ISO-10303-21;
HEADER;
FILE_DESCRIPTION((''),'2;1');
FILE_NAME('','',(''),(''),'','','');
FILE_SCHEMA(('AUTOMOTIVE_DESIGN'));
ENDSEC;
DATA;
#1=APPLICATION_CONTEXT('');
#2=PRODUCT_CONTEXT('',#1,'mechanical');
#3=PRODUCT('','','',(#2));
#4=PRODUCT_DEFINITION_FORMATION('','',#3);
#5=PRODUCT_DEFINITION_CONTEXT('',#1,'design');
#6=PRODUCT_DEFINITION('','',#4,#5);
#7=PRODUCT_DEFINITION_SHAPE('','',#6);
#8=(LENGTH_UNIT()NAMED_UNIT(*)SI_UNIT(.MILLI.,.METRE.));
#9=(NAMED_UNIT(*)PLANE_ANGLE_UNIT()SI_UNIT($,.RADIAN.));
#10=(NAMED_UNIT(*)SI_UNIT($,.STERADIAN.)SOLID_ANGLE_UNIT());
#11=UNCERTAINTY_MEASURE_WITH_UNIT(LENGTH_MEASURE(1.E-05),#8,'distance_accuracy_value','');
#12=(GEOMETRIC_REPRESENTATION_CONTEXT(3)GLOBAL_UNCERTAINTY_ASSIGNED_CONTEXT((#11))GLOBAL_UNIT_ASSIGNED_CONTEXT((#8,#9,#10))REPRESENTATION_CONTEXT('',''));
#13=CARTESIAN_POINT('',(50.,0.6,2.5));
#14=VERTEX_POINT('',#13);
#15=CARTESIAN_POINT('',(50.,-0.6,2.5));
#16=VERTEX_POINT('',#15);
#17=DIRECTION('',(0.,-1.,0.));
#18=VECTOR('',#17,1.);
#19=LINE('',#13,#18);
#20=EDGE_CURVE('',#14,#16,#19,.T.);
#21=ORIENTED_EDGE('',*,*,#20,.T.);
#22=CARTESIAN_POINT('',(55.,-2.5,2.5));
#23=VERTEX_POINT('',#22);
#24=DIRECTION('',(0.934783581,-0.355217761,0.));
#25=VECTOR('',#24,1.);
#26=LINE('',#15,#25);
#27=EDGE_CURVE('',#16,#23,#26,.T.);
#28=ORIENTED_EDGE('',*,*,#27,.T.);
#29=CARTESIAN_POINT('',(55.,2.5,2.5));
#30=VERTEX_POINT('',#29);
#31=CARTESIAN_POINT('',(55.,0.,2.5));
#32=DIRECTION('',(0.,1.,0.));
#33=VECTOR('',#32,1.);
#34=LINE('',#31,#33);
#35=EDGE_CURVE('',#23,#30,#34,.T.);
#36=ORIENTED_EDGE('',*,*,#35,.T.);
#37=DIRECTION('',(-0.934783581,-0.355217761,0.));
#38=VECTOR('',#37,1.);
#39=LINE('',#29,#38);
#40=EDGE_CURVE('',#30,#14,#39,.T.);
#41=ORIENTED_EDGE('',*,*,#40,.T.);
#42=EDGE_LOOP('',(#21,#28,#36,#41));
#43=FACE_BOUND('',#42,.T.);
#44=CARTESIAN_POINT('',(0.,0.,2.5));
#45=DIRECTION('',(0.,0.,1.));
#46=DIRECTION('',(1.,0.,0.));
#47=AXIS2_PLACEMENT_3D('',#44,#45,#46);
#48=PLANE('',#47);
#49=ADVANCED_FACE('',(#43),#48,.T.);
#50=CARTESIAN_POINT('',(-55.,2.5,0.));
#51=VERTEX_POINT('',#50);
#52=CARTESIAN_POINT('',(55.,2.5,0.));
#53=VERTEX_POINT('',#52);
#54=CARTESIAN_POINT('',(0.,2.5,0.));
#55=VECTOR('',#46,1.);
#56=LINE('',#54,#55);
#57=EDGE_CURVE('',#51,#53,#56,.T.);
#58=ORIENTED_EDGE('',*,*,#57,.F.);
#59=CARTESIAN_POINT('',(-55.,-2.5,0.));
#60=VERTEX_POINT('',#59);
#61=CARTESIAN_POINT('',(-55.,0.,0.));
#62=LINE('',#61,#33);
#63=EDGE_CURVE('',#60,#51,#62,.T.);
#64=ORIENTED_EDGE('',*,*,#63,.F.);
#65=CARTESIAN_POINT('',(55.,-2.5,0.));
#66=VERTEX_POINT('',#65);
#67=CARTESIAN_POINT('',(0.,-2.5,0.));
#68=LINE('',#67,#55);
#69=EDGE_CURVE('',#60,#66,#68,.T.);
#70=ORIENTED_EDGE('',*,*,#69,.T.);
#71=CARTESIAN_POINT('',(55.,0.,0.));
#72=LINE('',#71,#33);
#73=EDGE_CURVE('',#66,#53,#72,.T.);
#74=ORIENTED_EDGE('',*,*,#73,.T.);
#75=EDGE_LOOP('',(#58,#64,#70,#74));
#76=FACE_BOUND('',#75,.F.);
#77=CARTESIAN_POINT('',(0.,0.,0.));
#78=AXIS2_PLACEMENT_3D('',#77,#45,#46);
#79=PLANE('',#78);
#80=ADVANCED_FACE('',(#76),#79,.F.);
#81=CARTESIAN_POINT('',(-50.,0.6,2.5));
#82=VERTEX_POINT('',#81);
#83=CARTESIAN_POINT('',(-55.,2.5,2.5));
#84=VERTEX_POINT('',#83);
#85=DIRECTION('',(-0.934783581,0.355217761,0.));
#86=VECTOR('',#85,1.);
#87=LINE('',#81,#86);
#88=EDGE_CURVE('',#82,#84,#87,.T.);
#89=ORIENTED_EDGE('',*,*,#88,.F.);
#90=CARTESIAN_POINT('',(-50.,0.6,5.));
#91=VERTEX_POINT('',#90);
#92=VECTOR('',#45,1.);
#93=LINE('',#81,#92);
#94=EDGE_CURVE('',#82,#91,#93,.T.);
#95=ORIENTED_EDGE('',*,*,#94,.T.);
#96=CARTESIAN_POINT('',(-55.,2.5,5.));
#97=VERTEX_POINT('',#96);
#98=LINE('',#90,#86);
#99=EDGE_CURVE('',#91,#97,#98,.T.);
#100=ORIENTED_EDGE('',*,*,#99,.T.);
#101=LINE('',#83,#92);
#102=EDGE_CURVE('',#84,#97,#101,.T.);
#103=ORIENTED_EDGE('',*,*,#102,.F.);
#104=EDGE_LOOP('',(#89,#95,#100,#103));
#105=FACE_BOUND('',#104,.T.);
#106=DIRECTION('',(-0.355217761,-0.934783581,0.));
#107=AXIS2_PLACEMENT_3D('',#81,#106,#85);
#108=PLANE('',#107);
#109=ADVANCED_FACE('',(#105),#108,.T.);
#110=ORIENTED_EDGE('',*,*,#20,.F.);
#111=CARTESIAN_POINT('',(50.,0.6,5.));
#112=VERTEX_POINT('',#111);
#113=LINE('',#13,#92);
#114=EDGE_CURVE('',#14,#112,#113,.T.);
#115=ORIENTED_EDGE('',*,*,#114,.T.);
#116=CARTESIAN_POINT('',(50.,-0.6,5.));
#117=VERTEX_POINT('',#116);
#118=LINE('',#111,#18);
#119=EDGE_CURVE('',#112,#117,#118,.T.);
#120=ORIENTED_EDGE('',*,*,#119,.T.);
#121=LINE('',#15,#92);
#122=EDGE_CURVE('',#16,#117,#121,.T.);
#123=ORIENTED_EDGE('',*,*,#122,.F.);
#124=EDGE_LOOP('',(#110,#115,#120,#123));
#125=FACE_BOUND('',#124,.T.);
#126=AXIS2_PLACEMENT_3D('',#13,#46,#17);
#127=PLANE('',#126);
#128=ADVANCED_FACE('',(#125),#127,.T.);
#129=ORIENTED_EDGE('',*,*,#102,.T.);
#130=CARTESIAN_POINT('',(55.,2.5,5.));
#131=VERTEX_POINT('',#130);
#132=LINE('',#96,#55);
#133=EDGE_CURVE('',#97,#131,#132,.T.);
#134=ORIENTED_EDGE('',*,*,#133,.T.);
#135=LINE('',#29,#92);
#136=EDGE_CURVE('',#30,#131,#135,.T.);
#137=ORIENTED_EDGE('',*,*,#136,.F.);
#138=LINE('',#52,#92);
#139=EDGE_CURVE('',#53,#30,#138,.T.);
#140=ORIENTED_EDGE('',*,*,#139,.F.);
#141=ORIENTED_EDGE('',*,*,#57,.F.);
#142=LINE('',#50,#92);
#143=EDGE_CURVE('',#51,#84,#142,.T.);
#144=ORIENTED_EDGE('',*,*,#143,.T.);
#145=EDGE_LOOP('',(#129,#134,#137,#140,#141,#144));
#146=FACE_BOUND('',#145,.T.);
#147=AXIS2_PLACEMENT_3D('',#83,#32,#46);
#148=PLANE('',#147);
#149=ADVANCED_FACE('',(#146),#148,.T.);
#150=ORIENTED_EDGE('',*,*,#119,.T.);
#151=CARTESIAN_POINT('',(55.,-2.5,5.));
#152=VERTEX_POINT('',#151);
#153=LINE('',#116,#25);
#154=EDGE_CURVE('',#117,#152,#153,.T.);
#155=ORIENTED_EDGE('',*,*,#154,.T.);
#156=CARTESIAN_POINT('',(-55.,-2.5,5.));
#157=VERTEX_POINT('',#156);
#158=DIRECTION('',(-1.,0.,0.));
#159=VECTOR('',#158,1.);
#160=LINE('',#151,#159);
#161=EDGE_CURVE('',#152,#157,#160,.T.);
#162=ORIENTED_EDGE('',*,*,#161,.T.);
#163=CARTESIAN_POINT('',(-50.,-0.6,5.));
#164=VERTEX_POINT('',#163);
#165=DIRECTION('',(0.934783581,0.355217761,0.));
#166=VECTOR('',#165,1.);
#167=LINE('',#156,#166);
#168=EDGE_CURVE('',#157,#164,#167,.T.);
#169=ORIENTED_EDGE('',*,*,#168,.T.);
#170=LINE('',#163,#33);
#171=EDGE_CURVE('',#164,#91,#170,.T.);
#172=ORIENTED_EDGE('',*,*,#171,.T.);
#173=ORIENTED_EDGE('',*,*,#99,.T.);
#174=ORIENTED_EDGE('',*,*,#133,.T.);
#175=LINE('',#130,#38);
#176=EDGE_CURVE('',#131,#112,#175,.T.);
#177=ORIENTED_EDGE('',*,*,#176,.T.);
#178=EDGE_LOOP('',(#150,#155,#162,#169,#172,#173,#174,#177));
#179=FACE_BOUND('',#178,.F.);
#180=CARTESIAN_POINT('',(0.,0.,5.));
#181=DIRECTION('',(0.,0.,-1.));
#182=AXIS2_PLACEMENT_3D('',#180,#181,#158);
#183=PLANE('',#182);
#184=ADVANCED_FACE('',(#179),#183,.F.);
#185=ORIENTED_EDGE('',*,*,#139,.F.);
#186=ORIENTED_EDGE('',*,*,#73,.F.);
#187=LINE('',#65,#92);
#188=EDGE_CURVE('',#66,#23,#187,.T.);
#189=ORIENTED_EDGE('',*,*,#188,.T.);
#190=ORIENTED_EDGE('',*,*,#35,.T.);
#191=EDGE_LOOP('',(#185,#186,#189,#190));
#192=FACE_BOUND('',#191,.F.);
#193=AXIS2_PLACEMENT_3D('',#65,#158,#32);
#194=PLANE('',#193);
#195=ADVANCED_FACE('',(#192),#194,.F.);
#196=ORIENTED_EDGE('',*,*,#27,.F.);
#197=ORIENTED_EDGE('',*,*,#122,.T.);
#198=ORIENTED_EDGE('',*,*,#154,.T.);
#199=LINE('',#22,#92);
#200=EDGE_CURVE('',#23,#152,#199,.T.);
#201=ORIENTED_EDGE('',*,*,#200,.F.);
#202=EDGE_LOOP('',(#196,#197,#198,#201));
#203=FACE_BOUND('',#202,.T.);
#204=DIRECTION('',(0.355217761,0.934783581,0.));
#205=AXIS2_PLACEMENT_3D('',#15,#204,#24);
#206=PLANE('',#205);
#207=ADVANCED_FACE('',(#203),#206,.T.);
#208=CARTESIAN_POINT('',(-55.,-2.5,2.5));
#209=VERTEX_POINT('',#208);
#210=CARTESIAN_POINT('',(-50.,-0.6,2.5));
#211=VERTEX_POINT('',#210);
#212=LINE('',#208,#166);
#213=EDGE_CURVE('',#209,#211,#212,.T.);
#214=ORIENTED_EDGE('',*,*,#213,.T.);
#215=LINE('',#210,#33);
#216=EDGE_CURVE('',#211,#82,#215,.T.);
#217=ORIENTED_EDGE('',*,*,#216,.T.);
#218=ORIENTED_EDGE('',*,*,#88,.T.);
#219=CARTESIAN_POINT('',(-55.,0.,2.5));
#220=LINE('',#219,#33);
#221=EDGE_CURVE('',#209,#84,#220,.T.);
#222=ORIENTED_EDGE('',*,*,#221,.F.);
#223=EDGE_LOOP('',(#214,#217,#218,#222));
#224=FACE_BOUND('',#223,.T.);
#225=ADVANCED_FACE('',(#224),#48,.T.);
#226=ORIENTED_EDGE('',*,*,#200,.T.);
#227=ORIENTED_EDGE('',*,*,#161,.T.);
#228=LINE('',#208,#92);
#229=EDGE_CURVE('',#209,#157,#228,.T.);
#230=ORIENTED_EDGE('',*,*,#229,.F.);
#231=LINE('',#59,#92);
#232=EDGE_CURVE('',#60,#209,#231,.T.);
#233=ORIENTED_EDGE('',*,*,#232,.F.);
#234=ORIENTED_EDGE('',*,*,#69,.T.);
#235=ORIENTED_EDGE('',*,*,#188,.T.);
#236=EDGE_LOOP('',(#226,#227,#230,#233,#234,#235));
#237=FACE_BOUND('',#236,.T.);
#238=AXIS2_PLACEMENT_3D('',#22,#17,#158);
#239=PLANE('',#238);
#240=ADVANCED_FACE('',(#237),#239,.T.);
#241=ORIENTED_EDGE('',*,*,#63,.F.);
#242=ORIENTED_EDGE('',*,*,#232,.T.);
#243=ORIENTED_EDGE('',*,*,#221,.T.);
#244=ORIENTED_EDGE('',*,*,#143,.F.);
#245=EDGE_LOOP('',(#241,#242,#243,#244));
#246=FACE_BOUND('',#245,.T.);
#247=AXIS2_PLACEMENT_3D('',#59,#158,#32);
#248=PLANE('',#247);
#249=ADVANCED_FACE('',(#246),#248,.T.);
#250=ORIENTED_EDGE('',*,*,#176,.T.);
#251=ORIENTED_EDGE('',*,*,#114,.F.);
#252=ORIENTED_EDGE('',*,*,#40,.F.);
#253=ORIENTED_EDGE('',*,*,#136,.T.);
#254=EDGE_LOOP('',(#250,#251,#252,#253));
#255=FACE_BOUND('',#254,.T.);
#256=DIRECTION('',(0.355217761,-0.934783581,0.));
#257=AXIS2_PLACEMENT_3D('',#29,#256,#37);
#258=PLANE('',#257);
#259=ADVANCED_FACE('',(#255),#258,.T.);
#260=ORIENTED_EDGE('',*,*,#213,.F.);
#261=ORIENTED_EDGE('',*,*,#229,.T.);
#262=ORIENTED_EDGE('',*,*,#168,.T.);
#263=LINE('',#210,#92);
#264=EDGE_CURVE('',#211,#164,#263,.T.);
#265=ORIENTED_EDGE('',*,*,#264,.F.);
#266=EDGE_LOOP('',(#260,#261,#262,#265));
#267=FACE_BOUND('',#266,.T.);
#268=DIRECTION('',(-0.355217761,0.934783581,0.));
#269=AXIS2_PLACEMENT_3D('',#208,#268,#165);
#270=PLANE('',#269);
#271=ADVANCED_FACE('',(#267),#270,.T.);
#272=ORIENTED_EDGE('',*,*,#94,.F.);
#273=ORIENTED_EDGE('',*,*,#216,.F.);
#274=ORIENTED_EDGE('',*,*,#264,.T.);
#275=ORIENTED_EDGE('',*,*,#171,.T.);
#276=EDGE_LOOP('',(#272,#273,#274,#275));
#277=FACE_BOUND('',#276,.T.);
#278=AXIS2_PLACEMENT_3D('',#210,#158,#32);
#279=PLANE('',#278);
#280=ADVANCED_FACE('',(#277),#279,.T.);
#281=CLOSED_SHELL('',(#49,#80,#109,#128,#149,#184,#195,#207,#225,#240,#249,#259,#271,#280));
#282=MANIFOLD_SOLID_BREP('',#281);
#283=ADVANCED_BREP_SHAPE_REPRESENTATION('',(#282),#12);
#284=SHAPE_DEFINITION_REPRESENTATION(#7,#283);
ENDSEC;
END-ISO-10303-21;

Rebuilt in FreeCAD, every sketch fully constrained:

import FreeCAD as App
import Part
import Sketcher

doc = App.newDocument("Part")
body = doc.addObject("PartDesign::Body", "Body")

# Sketch on XY plane
sketch1 = doc.addObject("Sketcher::SketchObject", "Sketch")
body.addObject(sketch1)
sketch1.AttachmentSupport = (doc.XY_Plane, [""])
sketch1.MapMode = "FlatFace"
sketch1.addGeometry([
    Part.LineSegment(App.Vector(-55, 2, 0), App.Vector(-55, -2, 0)),
    Part.LineSegment(App.Vector(-55, -2, 0), App.Vector(55, -2, 0)),
    Part.LineSegment(App.Vector(55, -2, 0), App.Vector(55, 2, 0)),
    Part.LineSegment(App.Vector(55, 2, 0), App.Vector(-55, 2, 0)),
], False)
sketch1.addConstraint([
    Sketcher.Constraint("Coincident", 0, 2, 1, 1),
    Sketcher.Constraint("Coincident", 1, 2, 2, 1),
    Sketcher.Constraint("Coincident", 2, 2, 3, 1),
    Sketcher.Constraint("Coincident", 3, 2, 0, 1),
    Sketcher.Constraint("Vertical", 0),
    Sketcher.Constraint("Horizontal", 1),
    Sketcher.Constraint("Vertical", 2),
    Sketcher.Constraint("Horizontal", 3),
    Sketcher.Constraint("Symmetric", 0, 2, 2, 2, -1, 1),
    Sketcher.Constraint("DistanceX", 1, 1, 1, 2, 110.0),
    Sketcher.Constraint("DistanceY", 0, 2, 0, 1, 5.0),
])
pad1 = doc.addObject("PartDesign::Pad", "Pad")
body.addObject(pad1)
pad1.Profile = sketch1
pad1.Length = 2.5

# Sketch on XY plane
sketch2 = doc.addObject("Sketcher::SketchObject", "Sketch001")
body.addObject(sketch2)
sketch2.AttachmentSupport = (doc.XY_Plane, [""])
sketch2.MapMode = "FlatFace"
sketch2.AttachmentOffset = App.Placement(App.Vector(0, 0, 2.5), App.Rotation())
sketch2.addGeometry([
    Part.LineSegment(App.Vector(55, 2.5, 0), App.Vector(-55, 2.5, 0)),  # 0
    Part.LineSegment(App.Vector(-55, 2.5, 0), App.Vector(-50, 0.6, 0)),  # 1
    Part.LineSegment(App.Vector(-50, 0.6, 0), App.Vector(-50, -0.6, 0)),  # 2
    Part.LineSegment(App.Vector(-50, -0.6, 0), App.Vector(-55, -2.5, 0)),  # 3
    Part.LineSegment(App.Vector(-55, -2.5, 0), App.Vector(55, -2.5, 0)),  # 4
    Part.LineSegment(App.Vector(55, -2.5, 0), App.Vector(50, -0.6, 0)),  # 5
    Part.LineSegment(App.Vector(50, -0.6, 0), App.Vector(50, 0.6, 0)),  # 6
    Part.LineSegment(App.Vector(50, 0.6, 0), App.Vector(55, 2.5, 0)),  # 7
], False)
sketch2.addConstraint([
    Sketcher.Constraint("Coincident", 0, 2, 1, 1),
    Sketcher.Constraint("Coincident", 1, 2, 2, 1),
    Sketcher.Constraint("Coincident", 2, 2, 3, 1),
    Sketcher.Constraint("Coincident", 3, 2, 4, 1),
    Sketcher.Constraint("Coincident", 4, 2, 5, 1),
    Sketcher.Constraint("Coincident", 5, 2, 6, 1),
    Sketcher.Constraint("Coincident", 6, 2, 7, 1),
    Sketcher.Constraint("Coincident", 7, 2, 0, 1),
    Sketcher.Constraint("Horizontal", 0),
    Sketcher.Constraint("Vertical", 2),
    Sketcher.Constraint("Horizontal", 4),
    Sketcher.Constraint("Vertical", 6),
    Sketcher.Constraint("Symmetric", 0, 2, 4, 2, -1, 1),
    Sketcher.Constraint("Symmetric", 1, 2, 5, 2, -1, 1),
    Sketcher.Constraint("Parallel", 3, 7),
    Sketcher.Constraint("Horizontal", 2, 2, 5, 2),
    Sketcher.Constraint("Horizontal", 1, 2, 6, 2),
    Sketcher.Constraint("Vertical", 0, 2, 3, 2),
    Sketcher.Constraint("DistanceX", 0, 2, 0, 1, 110.0),
    Sketcher.Constraint("DistanceY", 2, 2, 2, 1, 1.2),
    Sketcher.Constraint("DistanceX", 1, 2, -1, 1, 50.0),
    Sketcher.Constraint("DistanceY", 3, 2, 0, 2, 5.0),
])
pad2 = doc.addObject("PartDesign::Pad", "Pad001")
body.addObject(pad2)
pad2.Profile = sketch2
pad2.Length = 2.5

doc.recompute()
